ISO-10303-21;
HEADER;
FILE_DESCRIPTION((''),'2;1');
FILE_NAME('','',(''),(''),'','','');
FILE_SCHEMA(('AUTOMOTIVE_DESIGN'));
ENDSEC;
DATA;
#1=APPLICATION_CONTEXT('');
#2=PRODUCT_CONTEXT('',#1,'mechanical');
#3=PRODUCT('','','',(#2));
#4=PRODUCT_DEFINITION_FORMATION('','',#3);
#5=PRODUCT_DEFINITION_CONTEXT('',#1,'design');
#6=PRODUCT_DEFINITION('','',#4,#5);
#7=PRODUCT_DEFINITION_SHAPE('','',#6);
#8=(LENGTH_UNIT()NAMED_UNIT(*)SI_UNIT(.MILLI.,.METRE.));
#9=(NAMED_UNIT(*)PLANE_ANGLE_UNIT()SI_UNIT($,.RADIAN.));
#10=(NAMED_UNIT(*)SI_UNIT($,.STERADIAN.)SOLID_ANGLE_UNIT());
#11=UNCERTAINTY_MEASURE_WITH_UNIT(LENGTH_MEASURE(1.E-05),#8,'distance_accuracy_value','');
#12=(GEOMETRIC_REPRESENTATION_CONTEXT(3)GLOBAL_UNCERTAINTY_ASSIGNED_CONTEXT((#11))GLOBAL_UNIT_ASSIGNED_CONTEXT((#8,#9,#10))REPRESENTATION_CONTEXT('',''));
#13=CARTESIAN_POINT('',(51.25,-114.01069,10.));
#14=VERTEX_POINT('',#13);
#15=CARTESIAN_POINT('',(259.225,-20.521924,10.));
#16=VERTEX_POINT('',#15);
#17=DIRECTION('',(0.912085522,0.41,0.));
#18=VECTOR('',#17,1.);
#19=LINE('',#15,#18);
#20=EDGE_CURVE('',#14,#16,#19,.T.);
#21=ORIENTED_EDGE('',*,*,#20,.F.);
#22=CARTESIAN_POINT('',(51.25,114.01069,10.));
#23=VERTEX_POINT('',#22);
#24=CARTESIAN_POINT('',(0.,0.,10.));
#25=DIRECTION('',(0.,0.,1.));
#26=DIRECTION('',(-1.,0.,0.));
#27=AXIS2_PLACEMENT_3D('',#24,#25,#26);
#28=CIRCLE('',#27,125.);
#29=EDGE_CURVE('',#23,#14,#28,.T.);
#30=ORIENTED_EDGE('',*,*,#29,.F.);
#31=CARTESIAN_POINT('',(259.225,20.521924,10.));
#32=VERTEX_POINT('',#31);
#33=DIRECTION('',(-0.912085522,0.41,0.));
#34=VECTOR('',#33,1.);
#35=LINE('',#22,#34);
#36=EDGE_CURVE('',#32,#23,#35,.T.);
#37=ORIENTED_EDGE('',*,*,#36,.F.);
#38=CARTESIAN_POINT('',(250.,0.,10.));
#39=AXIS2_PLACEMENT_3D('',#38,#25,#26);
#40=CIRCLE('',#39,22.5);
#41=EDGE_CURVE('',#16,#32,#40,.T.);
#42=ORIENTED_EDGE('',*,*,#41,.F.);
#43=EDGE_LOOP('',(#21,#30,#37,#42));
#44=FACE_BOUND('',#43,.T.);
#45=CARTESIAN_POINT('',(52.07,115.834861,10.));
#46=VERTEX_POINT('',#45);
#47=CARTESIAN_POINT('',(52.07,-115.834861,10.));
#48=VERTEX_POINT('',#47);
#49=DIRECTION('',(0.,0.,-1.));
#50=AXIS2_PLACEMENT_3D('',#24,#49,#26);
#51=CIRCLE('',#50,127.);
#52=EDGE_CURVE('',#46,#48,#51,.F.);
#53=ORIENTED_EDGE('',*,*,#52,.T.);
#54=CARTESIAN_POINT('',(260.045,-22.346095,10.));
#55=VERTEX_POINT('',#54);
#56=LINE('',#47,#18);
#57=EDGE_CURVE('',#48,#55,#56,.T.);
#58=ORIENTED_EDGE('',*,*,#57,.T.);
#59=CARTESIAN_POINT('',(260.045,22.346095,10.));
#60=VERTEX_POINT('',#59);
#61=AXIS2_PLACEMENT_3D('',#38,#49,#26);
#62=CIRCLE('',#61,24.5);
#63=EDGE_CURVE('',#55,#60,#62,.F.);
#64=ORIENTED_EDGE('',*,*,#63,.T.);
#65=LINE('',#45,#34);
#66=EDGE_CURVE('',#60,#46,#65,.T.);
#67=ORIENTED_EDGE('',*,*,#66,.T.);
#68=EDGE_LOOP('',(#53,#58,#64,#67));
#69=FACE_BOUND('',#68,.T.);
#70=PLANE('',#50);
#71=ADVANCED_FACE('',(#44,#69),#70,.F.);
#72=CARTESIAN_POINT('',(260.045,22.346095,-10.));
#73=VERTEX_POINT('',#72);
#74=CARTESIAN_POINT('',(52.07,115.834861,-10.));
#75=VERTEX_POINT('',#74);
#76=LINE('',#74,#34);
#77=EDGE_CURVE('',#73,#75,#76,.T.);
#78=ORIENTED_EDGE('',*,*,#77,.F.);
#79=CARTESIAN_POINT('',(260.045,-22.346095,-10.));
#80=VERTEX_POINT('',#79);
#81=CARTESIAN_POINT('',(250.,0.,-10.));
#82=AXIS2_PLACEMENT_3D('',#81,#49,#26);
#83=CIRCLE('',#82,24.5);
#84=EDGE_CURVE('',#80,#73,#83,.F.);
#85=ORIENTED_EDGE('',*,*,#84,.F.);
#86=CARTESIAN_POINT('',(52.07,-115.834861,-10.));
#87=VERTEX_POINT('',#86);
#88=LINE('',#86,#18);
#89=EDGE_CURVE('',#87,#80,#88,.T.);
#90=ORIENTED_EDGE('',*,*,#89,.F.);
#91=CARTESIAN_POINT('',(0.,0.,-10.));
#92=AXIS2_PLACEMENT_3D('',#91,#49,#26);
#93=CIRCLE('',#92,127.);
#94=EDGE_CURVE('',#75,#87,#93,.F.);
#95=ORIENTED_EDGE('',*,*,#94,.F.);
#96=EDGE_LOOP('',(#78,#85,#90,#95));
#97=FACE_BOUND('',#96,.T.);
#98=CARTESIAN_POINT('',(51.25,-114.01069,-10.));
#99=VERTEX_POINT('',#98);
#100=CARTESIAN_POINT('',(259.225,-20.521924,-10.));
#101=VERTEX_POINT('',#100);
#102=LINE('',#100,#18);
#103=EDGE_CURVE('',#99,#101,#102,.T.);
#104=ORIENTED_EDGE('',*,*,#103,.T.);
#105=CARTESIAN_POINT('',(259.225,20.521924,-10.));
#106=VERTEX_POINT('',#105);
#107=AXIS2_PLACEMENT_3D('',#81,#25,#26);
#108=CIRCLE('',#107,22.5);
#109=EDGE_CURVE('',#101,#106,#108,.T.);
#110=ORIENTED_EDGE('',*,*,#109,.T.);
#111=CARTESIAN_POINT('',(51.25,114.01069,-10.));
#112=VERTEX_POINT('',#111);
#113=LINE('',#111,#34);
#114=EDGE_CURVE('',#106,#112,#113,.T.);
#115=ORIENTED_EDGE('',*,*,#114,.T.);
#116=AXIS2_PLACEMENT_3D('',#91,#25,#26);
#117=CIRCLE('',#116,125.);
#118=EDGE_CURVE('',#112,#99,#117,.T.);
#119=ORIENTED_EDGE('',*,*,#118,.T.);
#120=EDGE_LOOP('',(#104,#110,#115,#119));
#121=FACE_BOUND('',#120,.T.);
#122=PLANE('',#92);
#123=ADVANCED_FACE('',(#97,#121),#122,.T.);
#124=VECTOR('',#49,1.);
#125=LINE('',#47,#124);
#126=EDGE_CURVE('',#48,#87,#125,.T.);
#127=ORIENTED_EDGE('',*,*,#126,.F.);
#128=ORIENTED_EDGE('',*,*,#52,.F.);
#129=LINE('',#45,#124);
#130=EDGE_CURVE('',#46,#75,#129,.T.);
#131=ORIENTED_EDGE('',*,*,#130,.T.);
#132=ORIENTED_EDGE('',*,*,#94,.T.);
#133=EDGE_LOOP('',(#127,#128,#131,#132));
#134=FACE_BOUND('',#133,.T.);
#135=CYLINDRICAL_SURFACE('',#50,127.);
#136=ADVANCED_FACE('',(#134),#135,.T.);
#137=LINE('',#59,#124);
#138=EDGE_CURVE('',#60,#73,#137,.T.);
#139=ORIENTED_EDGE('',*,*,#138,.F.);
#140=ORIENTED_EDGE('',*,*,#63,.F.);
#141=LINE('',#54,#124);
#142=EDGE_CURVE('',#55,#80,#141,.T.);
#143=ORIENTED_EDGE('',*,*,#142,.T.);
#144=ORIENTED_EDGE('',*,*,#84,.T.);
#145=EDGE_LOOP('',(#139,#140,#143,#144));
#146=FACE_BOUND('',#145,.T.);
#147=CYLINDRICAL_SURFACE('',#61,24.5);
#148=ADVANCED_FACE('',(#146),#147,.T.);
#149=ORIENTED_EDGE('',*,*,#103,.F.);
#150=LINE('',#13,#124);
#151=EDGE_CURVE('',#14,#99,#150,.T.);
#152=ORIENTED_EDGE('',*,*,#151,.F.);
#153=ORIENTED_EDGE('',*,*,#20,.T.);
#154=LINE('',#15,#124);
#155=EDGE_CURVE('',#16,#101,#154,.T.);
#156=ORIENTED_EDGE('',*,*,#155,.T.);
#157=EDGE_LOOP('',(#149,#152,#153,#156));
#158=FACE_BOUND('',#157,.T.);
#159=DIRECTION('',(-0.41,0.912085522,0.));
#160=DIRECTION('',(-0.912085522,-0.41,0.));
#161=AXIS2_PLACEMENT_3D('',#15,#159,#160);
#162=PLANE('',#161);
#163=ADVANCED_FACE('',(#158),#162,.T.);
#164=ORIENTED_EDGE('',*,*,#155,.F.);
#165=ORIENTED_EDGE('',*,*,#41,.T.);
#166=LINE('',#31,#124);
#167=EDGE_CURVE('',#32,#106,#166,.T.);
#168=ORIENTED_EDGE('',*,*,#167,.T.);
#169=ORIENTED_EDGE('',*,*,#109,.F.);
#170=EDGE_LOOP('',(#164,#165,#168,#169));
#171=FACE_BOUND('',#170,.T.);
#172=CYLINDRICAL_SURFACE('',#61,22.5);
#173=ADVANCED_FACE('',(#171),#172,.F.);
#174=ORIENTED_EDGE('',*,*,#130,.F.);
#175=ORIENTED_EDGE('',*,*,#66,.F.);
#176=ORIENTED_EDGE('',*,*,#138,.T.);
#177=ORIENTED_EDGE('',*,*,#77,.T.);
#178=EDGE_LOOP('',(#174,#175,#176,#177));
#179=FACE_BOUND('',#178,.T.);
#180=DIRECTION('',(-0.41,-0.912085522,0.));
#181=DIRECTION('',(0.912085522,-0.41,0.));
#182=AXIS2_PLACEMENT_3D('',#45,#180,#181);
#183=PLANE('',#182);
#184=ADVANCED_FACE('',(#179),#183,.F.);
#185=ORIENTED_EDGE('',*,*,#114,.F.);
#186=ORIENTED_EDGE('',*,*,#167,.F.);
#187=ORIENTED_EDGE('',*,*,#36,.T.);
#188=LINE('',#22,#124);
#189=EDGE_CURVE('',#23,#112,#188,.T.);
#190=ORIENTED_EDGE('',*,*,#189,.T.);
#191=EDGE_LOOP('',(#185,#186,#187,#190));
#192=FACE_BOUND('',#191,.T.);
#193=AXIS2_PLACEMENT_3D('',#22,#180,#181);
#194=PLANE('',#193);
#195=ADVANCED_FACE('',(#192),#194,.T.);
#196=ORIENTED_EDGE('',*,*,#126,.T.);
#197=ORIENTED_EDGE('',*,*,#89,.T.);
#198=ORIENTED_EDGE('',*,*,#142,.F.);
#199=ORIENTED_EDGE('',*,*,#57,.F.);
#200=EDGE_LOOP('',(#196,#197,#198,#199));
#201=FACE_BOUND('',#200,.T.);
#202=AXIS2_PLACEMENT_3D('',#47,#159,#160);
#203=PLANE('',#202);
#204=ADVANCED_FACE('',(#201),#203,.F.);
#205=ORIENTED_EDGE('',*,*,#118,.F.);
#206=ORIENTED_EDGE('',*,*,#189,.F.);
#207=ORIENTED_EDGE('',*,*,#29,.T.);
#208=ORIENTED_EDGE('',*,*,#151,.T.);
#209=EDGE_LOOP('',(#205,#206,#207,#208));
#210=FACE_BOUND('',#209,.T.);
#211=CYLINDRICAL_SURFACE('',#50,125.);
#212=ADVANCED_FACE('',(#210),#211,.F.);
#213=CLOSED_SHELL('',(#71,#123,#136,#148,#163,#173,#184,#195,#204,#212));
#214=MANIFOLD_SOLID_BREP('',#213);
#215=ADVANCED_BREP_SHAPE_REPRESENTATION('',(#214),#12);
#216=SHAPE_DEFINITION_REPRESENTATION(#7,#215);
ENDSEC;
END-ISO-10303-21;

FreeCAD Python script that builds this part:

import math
import FreeCAD as App
import Part
import Sketcher

V = App.Vector
Q = App.Units.Quantity

doc = App.newDocument("Part")
body = doc.addObject("PartDesign::Body", "Body")

# Sketch on XY plane
sketch1 = body.newObject("Sketcher::SketchObject", "Sketch")
sketch1.AttachmentSupport = (doc.getObject("XY_Plane"), [""])
sketch1.MapMode = "FlatFace"
sketch1.addGeometry([
    Part.LineSegment(V(52, -116, 0), V(260, -22, 0)),  # 0
    Part.ArcOfCircle(Part.Circle(V(250, 0, 0), V(0, 0, 1), 24), math.radians(-66), math.radians(66)),  # 1
    Part.LineSegment(V(260, 22, 0), V(52, 116, 0)),  # 2
    Part.ArcOfCircle(Part.Circle(V(0, 0, 0), V(0, 0, 1), 127), math.radians(66), math.radians(294)),  # 3
    Part.LineSegment(V(259, -21, 0), V(51, -114, 0)),  # 4
    Part.ArcOfCircle(Part.Circle(V(0, 0, 0), V(0, 0, 1), 125), math.radians(66), math.radians(294)),  # 5
    Part.LineSegment(V(51, 114, 0), V(259, 21, 0)),  # 6
    Part.ArcOfCircle(Part.Circle(V(250, 0, 0), V(0, 0, 1), 22), math.radians(-66), math.radians(66)),  # 7
], False)
sketch1.addConstraint([
    Sketcher.Constraint("Tangent", 0, 2, 1, 1),
    Sketcher.Constraint("Tangent", 1, 2, 2, 1),
    Sketcher.Constraint("Tangent", 2, 2, 3, 1),
    Sketcher.Constraint("Tangent", 3, 2, 0, 1),
    Sketcher.Constraint("Tangent", 4, 2, 5, 2),
    Sketcher.Constraint("Tangent", 5, 1, 6, 1),
    Sketcher.Constraint("Tangent", 6, 2, 7, 2),
    Sketcher.Constraint("Tangent", 7, 1, 4, 1),
    Sketcher.Constraint("Coincident", 3, 3, -1, 1),
    Sketcher.Constraint("Coincident", 5, 3, -1, 1),
    Sketcher.Constraint("Coincident", 7, 3, 1, 3),
    Sketcher.Constraint("PointOnObject", 1, 3, -1),
    Sketcher.Constraint("Parallel", 0, 4),
    Sketcher.Constraint("Radius", 3, Q("127 mm")),
    Sketcher.Constraint("Radius", 5, Q("125 mm")),
    Sketcher.Constraint("Radius", 1, Q("24.5 mm")),
    Sketcher.Constraint("DistanceX", -1, 1, 1, 3, Q("250 mm")),
])
pad1 = body.newObject("PartDesign::Pad", "Pad")
pad1.Profile = sketch1
pad1.Length = 20
pad1.Midplane = True

doc.recompute()
